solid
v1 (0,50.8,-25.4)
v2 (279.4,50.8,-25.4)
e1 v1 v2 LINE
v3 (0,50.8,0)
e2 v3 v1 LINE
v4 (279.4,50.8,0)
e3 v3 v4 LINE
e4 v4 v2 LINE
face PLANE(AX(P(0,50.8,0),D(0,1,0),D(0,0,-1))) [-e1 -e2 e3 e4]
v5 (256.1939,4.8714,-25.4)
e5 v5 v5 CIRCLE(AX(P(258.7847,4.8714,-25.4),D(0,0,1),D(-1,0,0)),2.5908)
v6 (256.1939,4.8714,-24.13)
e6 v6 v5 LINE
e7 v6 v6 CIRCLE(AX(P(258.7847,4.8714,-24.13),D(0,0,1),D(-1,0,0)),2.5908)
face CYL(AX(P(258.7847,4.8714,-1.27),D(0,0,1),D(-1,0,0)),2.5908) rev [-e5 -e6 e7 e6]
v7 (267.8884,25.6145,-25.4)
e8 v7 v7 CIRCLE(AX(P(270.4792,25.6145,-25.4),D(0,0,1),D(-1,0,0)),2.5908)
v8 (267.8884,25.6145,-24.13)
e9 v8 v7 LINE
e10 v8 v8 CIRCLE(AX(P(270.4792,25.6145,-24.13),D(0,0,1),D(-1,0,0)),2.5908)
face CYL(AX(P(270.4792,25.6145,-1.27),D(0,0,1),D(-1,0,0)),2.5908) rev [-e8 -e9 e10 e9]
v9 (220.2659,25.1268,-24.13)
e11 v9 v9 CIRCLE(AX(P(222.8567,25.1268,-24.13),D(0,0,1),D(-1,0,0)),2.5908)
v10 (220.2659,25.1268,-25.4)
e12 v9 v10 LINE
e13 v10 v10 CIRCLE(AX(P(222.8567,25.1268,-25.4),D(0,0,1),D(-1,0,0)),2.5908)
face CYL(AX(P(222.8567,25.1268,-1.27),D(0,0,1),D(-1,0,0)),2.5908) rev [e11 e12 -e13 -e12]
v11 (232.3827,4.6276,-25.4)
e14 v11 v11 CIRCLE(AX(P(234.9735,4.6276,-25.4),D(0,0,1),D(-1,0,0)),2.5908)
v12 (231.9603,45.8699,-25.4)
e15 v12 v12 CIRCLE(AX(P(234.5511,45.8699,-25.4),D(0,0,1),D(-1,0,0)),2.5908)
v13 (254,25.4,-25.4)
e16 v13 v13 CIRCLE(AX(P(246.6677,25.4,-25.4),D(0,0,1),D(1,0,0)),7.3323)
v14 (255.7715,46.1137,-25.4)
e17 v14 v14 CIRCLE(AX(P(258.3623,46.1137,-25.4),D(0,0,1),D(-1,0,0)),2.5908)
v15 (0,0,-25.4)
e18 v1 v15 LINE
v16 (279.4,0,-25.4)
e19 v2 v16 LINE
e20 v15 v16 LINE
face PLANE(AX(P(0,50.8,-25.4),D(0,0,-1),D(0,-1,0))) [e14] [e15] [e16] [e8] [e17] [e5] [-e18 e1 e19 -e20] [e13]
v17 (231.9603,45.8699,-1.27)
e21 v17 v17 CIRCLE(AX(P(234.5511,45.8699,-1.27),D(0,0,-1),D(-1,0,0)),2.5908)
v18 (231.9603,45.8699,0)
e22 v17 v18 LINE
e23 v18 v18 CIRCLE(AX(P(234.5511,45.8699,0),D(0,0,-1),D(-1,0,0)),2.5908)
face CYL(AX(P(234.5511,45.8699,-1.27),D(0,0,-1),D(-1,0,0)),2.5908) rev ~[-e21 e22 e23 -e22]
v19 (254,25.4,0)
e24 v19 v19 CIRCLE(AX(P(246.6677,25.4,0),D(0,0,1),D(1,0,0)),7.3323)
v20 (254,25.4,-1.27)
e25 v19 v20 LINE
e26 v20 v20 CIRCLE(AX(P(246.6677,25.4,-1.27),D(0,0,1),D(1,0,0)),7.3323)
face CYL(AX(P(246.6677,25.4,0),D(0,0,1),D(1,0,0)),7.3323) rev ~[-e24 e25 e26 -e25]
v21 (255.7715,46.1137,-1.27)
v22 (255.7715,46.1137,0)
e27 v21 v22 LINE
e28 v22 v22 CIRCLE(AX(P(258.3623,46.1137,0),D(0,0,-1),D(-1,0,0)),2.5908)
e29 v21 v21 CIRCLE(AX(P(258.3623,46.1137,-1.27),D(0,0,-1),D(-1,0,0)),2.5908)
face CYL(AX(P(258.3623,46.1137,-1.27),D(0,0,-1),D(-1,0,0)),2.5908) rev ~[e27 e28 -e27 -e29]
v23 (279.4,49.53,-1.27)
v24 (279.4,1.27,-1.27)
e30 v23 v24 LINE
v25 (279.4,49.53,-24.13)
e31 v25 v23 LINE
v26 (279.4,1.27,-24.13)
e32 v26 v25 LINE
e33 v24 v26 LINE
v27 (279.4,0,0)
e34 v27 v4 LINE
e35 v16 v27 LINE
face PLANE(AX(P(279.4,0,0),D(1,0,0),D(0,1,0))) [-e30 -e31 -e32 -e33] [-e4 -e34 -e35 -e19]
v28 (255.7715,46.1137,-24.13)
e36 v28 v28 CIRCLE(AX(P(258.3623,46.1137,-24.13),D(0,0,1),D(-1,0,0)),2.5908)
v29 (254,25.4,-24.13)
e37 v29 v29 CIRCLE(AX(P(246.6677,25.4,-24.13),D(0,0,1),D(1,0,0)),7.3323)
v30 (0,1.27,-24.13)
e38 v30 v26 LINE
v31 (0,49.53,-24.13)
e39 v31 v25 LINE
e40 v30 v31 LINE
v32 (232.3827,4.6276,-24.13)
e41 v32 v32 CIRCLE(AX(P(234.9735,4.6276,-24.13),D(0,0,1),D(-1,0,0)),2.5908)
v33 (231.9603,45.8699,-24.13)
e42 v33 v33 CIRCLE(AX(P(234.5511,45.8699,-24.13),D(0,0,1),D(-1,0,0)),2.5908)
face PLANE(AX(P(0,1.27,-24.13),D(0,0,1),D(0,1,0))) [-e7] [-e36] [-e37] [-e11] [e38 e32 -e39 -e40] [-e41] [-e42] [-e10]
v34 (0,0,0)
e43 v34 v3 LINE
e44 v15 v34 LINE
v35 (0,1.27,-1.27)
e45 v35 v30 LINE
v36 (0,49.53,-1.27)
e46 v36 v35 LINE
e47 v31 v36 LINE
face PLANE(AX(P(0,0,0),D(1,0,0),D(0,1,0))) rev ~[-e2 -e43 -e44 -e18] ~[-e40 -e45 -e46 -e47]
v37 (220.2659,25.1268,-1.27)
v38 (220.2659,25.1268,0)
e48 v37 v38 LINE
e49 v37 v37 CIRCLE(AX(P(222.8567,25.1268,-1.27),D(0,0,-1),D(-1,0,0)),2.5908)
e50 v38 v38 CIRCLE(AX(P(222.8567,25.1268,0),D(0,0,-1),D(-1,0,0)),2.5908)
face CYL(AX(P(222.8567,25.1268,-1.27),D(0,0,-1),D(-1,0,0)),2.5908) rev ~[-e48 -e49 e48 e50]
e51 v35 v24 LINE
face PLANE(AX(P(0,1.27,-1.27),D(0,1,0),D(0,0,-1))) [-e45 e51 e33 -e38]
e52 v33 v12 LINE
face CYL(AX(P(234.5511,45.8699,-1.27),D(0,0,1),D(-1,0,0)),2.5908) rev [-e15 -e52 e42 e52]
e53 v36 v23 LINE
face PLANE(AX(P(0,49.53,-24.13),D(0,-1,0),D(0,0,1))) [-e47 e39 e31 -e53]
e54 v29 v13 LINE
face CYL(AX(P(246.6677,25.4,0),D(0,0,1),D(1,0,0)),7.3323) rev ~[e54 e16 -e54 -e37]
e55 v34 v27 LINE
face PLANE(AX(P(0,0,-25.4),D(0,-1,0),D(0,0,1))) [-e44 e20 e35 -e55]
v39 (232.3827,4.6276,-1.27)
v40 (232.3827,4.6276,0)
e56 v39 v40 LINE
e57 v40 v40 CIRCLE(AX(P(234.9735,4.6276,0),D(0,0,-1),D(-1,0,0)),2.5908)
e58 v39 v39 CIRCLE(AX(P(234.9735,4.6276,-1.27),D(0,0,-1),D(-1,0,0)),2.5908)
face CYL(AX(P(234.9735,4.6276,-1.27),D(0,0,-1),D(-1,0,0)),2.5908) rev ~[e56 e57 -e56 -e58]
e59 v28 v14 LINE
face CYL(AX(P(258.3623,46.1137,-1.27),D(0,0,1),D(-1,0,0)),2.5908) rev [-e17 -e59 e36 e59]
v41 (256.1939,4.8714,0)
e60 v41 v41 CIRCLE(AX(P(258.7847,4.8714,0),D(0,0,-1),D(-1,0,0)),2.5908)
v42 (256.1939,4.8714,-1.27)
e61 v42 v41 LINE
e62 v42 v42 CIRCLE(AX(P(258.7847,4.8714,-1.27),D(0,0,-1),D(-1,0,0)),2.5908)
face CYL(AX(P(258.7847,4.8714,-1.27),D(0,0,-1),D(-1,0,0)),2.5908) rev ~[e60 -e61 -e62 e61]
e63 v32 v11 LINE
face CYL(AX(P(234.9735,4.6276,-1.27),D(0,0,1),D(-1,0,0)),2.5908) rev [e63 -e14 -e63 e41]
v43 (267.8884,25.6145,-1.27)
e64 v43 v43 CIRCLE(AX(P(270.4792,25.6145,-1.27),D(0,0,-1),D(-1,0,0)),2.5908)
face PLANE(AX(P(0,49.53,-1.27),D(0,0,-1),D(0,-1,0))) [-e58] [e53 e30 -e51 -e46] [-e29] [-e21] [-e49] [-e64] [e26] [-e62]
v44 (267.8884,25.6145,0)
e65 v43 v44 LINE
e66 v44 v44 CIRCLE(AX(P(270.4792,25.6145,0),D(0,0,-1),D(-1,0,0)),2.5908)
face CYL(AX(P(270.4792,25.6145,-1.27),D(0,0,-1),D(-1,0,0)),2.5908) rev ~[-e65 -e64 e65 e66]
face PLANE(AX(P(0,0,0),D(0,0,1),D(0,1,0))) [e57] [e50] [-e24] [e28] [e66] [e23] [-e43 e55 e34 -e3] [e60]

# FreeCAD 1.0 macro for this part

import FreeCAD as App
import Part
import Sketcher
from FreeCAD import Vector
Q = App.Units.Quantity

doc = App.newDocument("Part")
body = doc.addObject("PartDesign::Body", "Body")

sketch1 = body.newObject("Sketcher::SketchObject", "Sketch")
sketch1.AttachmentSupport = (doc.getObject("YZ_Plane"), [""])
sketch1.MapMode = "FlatFace"
sketch1.addGeometry(Part.LineSegment(Vector(51, 0, 0), Vector(0, 0, 0)), False)
sketch1.addGeometry(Part.LineSegment(Vector(0, 0, 0), Vector(0, -25, 0)), False)
sketch1.addGeometry(Part.LineSegment(Vector(0, -25, 0), Vector(51, -25, 0)), False)
sketch1.addGeometry(Part.LineSegment(Vector(51, -25, 0), Vector(51, 0, 0)), False)
sketch1.addGeometry(Part.LineSegment(Vector(1, -1, 0), Vector(50, -1, 0)), False)
sketch1.addGeometry(Part.LineSegment(Vector(50, -1, 0), Vector(50, -24, 0)), False)
sketch1.addGeometry(Part.LineSegment(Vector(50, -24, 0), Vector(1, -24, 0)), False)
sketch1.addGeometry(Part.LineSegment(Vector(1, -24, 0), Vector(1, -1, 0)), False)
sketch1.addConstraint(Sketcher.Constraint("Coincident", 0, 2, 1, 1))
sketch1.addConstraint(Sketcher.Constraint("Coincident", 1, 2, 2, 1))
sketch1.addConstraint(Sketcher.Constraint("Coincident", 2, 2, 3, 1))
sketch1.addConstraint(Sketcher.Constraint("Coincident", 3, 2, 0, 1))
sketch1.addConstraint(Sketcher.Constraint("Coincident", 4, 2, 5, 1))
sketch1.addConstraint(Sketcher.Constraint("Coincident", 5, 2, 6, 1))
sketch1.addConstraint(Sketcher.Constraint("Coincident", 6, 2, 7, 1))
sketch1.addConstraint(Sketcher.Constraint("Coincident", 7, 2, 4, 1))
sketch1.addConstraint(Sketcher.Constraint("Horizontal", 0))
sketch1.addConstraint(Sketcher.Constraint("Vertical", 1))
sketch1.addConstraint(Sketcher.Constraint("Horizontal", 2))
sketch1.addConstraint(Sketcher.Constraint("Vertical", 3))
sketch1.addConstraint(Sketcher.Constraint("Horizontal", 4))
sketch1.addConstraint(Sketcher.Constraint("Vertical", 5))
sketch1.addConstraint(Sketcher.Constraint("Horizontal", 6))
sketch1.addConstraint(Sketcher.Constraint("Vertical", 7))
sketch1.addConstraint(Sketcher.Constraint("Coincident", 0, 2, -1, 1))
sketch1.addConstraint(Sketcher.Constraint("DistanceX", 0, 2, 0, 1, Q("2 in")))
sketch1.addConstraint(Sketcher.Constraint("DistanceY", 1, 2, 1, 1, Q("1 in")))
sketch1.addConstraint(Sketcher.Constraint("DistanceY", 4, 2, -1, 1, Q("0.05 in")))
sketch1.addConstraint(Sketcher.Constraint("DistanceX", -1, 1, 6, 2, Q("0.05 in")))
sketch1.addConstraint(Sketcher.Constraint("DistanceX", 4, 2, 3, 2, Q("0.05 in")))
sketch1.addConstraint(Sketcher.Constraint("DistanceY", 2, 2, 5, 2, Q("0.05 in")))
pad1 = body.newObject("PartDesign::Pad", "Pad")
pad1.Profile = sketch1
pad1.Length = Q("11 in")

sketch2 = body.newObject("Sketcher::SketchObject", "Sketch001")
sketch2.AttachmentSupport = (doc.getObject("XY_Plane"), [""])
sketch2.MapMode = "FlatFace"
sketch2.addGeometry(Part.Circle(Vector(247, 25, 0), Vector(0, 0, 1), 7), False)
sketch2.addConstraint(Sketcher.Constraint("DistanceY", -1, 1, 0, 3, Q("1 in")))
sketch2.addConstraint(Sketcher.Constraint("Diameter", 0, Q("14.6646 mm")))
sketch2.addConstraint(Sketcher.Constraint("DistanceX", -1, 1, 0, 3, Q("246.6677 mm")))
pocket1 = body.newObject("PartDesign::Pocket", "Pocket")
pocket1.Profile = sketch2
pocket1.Type = "ThroughAll"

sketch3 = body.newObject("Sketcher::SketchObject", "Sketch002")
sketch3.AttachmentSupport = (doc.getObject("XY_Plane"), [""])
sketch3.MapMode = "FlatFace"
sketch3.AttachmentOffset = App.Placement(Vector(0, 0, -0.05 * 25.4), App.Rotation())
sketch3.addGeometry(Part.Circle(Vector(270.5, 25.6, 0), Vector(0, 0, 1), 2.6), False)
sketch3.addGeometry(Part.Circle(Vector(258.4, 46.1, 0), Vector(0, 0, 1), 2.6), False)
sketch3.addGeometry(Part.Circle(Vector(258.8, 4.9, 0), Vector(0, 0, 1), 2.6), False)
sketch3.addGeometry(Part.Circle(Vector(222.9, 25.1, 0), Vector(0, 0, 1), 2.6), False)
sketch3.addGeometry(Part.Circle(Vector(235, 4.6, 0), Vector(0, 0, 1), 2.6), False)
sketch3.addGeometry(Part.Circle(Vector(234.6, 45.9, 0), Vector(0, 0, 1), 2.6), False)
sketch3.addConstraint(Sketcher.Constraint("Equal", 0, 1))
sketch3.addConstraint(Sketcher.Constraint("Equal", 1, 2))
sketch3.addConstraint(Sketcher.Constraint("Equal", 2, 3))
sketch3.addConstraint(Sketcher.Constraint("Equal", 3, 4))
sketch3.addConstraint(Sketcher.Constraint("Equal", 4, 5))
sketch3.addConstraint(Sketcher.Constraint("Diameter", 0, Q("0.204 in")))
sketch3.addConstraint(Sketcher.Constraint("DistanceY", -1, 1, 1, 3, Q("1.8155 in")))
sketch3.addConstraint(Sketcher.Constraint("DistanceY", -1, 1, 4, 3, Q("0.1822 in")))
sketch3.addConstraint(Sketcher.Constraint("DistanceX", -1, 1, 5, 3, Q("9.2343 in")))
sketch3.addConstraint(Sketcher.Constraint("DistanceY", -1, 1, 5, 3, Q("1.8059 in")))
sketch3.addConstraint(Sketcher.Constraint("DistanceX", 3, 3, 2, 3, Q("1.4145 in")))
sketch3.addConstraint(Sketcher.Constraint("DistanceX", 3, 3, 0, 3, Q("1.8749 in")))
sketch3.addConstraint(Sketcher.Constraint("DistanceY", 3, 3, 0, 3, Q("0.0192 in")))
sketch3.addConstraint(Sketcher.Constraint("DistanceY", 4, 3, 2, 3, Q("0.0096 in")))
sketch3.addConstraint(Sketcher.Constraint("DistanceX", 3, 3, 5, 3, Q("0.4604 in")))
sketch3.addConstraint(Sketcher.Constraint("DistanceY", -1, 1, 0, 3, Q("25.6145 mm")))
sketch3.addConstraint(Sketcher.Constraint("DistanceX", -1, 1, 1, 3, Q("258.3623 mm")))
sketch3.addConstraint(Sketcher.Constraint("DistanceX", -1, 1, 4, 3, Q("234.9735 mm")))
pocket2 = body.newObject("PartDesign::Pocket", "Pocket001")
pocket2.Profile = sketch3
pocket2.Type = "ThroughAll"
pocket2.Midplane = True

doc.recompute()
